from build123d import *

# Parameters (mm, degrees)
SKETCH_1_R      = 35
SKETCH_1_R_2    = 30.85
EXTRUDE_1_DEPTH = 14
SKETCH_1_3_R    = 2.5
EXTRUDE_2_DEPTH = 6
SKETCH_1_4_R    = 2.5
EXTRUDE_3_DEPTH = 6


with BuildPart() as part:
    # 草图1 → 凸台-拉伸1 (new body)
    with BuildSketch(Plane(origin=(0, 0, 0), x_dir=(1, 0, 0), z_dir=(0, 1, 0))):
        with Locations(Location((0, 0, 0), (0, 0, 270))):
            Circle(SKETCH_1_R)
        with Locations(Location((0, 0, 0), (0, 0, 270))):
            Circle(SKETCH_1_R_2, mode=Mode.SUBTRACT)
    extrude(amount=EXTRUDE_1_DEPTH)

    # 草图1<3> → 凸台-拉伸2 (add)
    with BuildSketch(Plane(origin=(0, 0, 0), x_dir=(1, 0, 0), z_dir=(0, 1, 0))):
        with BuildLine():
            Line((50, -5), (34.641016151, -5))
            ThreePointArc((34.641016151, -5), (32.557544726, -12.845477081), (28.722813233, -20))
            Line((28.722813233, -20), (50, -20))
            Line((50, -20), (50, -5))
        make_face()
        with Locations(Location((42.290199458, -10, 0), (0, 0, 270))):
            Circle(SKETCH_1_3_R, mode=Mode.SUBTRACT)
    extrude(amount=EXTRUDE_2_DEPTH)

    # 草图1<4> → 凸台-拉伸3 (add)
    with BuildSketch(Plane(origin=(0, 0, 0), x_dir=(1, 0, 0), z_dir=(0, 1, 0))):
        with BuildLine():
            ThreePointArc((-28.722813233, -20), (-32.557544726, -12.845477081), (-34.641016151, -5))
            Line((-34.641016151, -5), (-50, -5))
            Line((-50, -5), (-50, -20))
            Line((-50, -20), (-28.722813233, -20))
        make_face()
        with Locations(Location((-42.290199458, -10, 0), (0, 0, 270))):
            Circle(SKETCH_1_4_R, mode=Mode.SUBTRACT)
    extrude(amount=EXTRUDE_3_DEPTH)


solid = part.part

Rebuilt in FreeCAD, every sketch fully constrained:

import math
import FreeCAD as App
import Part
import Sketcher

doc = App.newDocument("Part")
body = doc.addObject("PartDesign::Body", "Body")

# Sketch on XZ plane
sketch1 = doc.addObject("Sketcher::SketchObject", "Sketch")
body.addObject(sketch1)
sketch1.AttachmentSupport = (doc.XZ_Plane, [""])
sketch1.MapMode = "FlatFace"
sketch1.addGeometry([
    Part.Circle(App.Vector(0, 0, 0), App.Vector(0, 0, 1), 35),
    Part.Circle(App.Vector(0, 0, 0), App.Vector(0, 0, 1), 31),
], False)
sketch1.addConstraint([
    Sketcher.Constraint("Coincident", 0, 3, -1, 1),
    Sketcher.Constraint("Coincident", 1, 3, -1, 1),
    Sketcher.Constraint("Diameter", 0, 70.0),
    Sketcher.Constraint("Diameter", 1, 61.7),
])
pad1 = doc.addObject("PartDesign::Pad", "Pad")
body.addObject(pad1)
pad1.Profile = sketch1
pad1.Length = 14
pad1.Reversed = True

# Sketch on XZ plane
sketch2 = doc.addObject("Sketcher::SketchObject", "Sketch001")
body.addObject(sketch2)
sketch2.AttachmentSupport = (doc.XZ_Plane, [""])
sketch2.MapMode = "FlatFace"
sketch2.addGeometry([
    Part.LineSegment(App.Vector(50, 5, 0), App.Vector(34.6, 5, 0)),  # 0
    Part.ArcOfCircle(Part.Circle(App.Vector(0, 0, 0), App.Vector(0, 0, 1), 35), math.radians(8), math.radians(35)),  # 1
    Part.LineSegment(App.Vector(28.7, 20, 0), App.Vector(50, 20, 0)),  # 2
    Part.LineSegment(App.Vector(50, 20, 0), App.Vector(50, 5, 0)),  # 3
    Part.Circle(App.Vector(42.3, 10, 0), App.Vector(0, 0, 1), 2.5),  # 4
], False)
sketch2.addConstraint([
    Sketcher.Constraint("Coincident", 0, 2, 1, 1),
    Sketcher.Constraint("Coincident", 1, 2, 2, 1),
    Sketcher.Constraint("Coincident", 2, 2, 3, 1),
    Sketcher.Constraint("Coincident", 3, 2, 0, 1),
    Sketcher.Constraint("Horizontal", 0),
    Sketcher.Constraint("Horizontal", 2),
    Sketcher.Constraint("Vertical", 3),
    Sketcher.Constraint("Coincident", 1, 3, -1, 1),
    Sketcher.Constraint("Diameter", 4, 5.0),
    Sketcher.Constraint("Radius", 1, 35.0),
    Sketcher.Constraint("DistanceY", 3, 2, 3, 1, 15.0),
    Sketcher.Constraint("DistanceY", -1, 1, 4, 3, 10.0),
    Sketcher.Constraint("DistanceY", -1, 1, 0, 2, 5.0),
    Sketcher.Constraint("DistanceX", -1, 1, 2, 2, 50.0),
    Sketcher.Constraint("DistanceX", -1, 1, 4, 3, 42.290199),
])
pad2 = doc.addObject("PartDesign::Pad", "Pad001")
body.addObject(pad2)
pad2.Profile = sketch2
pad2.Length = 6
pad2.Reversed = True

# Sketch on XZ plane
sketch3 = doc.addObject("Sketcher::SketchObject", "Sketch002")
body.addObject(sketch3)
sketch3.AttachmentSupport = (doc.XZ_Plane, [""])
sketch3.MapMode = "FlatFace"
sketch3.addGeometry([
    Part.ArcOfCircle(Part.Circle(App.Vector(0, 0, 0), App.Vector(0, 0, 1), 35), math.radians(145), math.radians(172)),  # 0
    Part.LineSegment(App.Vector(-34.6, 5, 0), App.Vector(-50, 5, 0)),  # 1
    Part.LineSegment(App.Vector(-50, 5, 0), App.Vector(-50, 20, 0)),  # 2
    Part.LineSegment(App.Vector(-50, 20, 0), App.Vector(-28.7, 20, 0)),  # 3
    Part.Circle(App.Vector(-42.3, 10, 0), App.Vector(0, 0, 1), 2.5),  # 4
], False)
sketch3.addConstraint([
    Sketcher.Constraint("Coincident", 0, 2, 1, 1),
    Sketcher.Constraint("Coincident", 1, 2, 2, 1),
    Sketcher.Constraint("Coincident", 2, 2, 3, 1),
    Sketcher.Constraint("Coincident", 3, 2, 0, 1),
    Sketcher.Constraint("Horizontal", 1),
    Sketcher.Constraint("Vertical", 2),
    Sketcher.Constraint("Horizontal", 3),
    Sketcher.Constraint("Coincident", 0, 3, -1, 1),
    Sketcher.Constraint("Diameter", 4, 5.0),
    Sketcher.Constraint("Radius", 0, 35.0),
    Sketcher.Constraint("DistanceY", 2, 1, 2, 2, 15.0),
    Sketcher.Constraint("DistanceY", -1, 1, 4, 3, 10.0),
    Sketcher.Constraint("DistanceY", -1, 1, 0, 2, 5.0),
    Sketcher.Constraint("DistanceX", 1, 2, -1, 1, 50.0),
    Sketcher.Constraint("DistanceX", 4, 3, -1, 1, 42.290199),
])
pad3 = doc.addObject("PartDesign::Pad", "Pad002")
body.addObject(pad3)
pad3.Profile = sketch3
pad3.Length = 6
pad3.Reversed = True

doc.recompute()
